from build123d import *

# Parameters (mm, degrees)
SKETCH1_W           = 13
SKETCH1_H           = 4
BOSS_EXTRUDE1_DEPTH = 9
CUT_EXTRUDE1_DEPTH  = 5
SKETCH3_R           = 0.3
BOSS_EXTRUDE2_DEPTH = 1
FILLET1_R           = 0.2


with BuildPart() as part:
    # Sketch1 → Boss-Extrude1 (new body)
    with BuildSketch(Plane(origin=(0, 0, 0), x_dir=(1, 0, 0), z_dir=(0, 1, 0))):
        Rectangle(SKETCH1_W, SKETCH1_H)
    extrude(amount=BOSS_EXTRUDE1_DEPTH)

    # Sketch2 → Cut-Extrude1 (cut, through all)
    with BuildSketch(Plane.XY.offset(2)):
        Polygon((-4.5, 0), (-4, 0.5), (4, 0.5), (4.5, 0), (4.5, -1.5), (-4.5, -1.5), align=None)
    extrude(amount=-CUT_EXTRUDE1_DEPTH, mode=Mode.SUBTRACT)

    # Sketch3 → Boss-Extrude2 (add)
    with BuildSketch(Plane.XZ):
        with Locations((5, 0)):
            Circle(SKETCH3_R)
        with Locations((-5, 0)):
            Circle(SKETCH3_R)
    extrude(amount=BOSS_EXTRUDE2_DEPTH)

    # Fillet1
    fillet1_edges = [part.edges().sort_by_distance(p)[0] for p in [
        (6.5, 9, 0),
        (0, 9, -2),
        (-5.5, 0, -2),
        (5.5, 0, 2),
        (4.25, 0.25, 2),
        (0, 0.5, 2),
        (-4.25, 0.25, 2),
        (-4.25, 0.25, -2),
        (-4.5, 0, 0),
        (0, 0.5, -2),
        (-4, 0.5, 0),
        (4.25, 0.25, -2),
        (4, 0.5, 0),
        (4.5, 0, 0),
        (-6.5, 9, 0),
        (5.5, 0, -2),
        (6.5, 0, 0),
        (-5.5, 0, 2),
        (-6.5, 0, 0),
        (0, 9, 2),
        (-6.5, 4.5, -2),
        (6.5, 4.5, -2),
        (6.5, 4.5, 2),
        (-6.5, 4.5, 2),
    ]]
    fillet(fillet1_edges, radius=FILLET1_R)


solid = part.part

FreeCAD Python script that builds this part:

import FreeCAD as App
import Part
import Sketcher
from FreeCAD import Vector
Q = App.Units.Quantity


def edges_at(feature, points):
    """Names of the edges that pass closest to the given points."""
    edges = feature.Shape.Edges
    near = lambda p: min(range(len(edges)), key=lambda i: edges[i].distToShape(Part.Vertex(*p))[0])
    return sorted({f"Edge{near(p) + 1}" for p in points})


def add_polygon(sketch, points):
    """Adds a closed chain of lines whose ends are joined by coincident constraints."""
    first, n = sketch.GeometryCount, len(points)
    for a, b in zip(points, points[1:] + points[:1]):
        sketch.addGeometry(Part.LineSegment(App.Vector(*a, 0), App.Vector(*b, 0)), False)
    for i in range(n):
        sketch.addConstraint(Sketcher.Constraint("Coincident", first + i, 2, first + (i + 1) % n, 1))

doc = App.newDocument("Part")
body = doc.addObject("PartDesign::Body", "Body")

# Sketch on XZ plane
sketch1 = doc.addObject("Sketcher::SketchObject", "Sketch")
body.addObject(sketch1)
sketch1.AttachmentSupport = (doc.XZ_Plane, [""])
sketch1.MapMode = "FlatFace"
add_polygon(sketch1, [(-6.5, -2), (-6.5, 2), (6.5, 2), (6.5, -2)])  # lines 0-3
sketch1.addConstraint(Sketcher.Constraint("Vertical", 0))
sketch1.addConstraint(Sketcher.Constraint("Horizontal", 1))
sketch1.addConstraint(Sketcher.Constraint("Vertical", 2))
sketch1.addConstraint(Sketcher.Constraint("Horizontal", 3))
sketch1.addConstraint(Sketcher.Constraint("Symmetric", 0, 2, 2, 2, -1, 1))
sketch1.addConstraint(Sketcher.Constraint("DistanceX", 1, 1, 1, 2, Q("13 mm")))
sketch1.addConstraint(Sketcher.Constraint("DistanceY", 0, 1, 0, 2, Q("4 mm")))
pad1 = doc.addObject("PartDesign::Pad", "Pad")
body.addObject(pad1)
pad1.Profile = sketch1
pad1.Length = 9
pad1.Reversed = True

# Sketch on XY plane
sketch2 = doc.addObject("Sketcher::SketchObject", "Sketch001")
body.addObject(sketch2)
sketch2.AttachmentSupport = (doc.XY_Plane, [""])
sketch2.MapMode = "FlatFace"
sketch2.AttachmentOffset = App.Placement(Vector(0, 0, 2), App.Rotation())
add_polygon(sketch2, [(-4, 0.5), (-4.5, 0), (-4.5, -1.5), (4.5, -1.5), (4.5, 0), (4, 0.5)])  # lines 0-5
sketch2.addConstraint(Sketcher.Constraint("Vertical", 1))
sketch2.addConstraint(Sketcher.Constraint("Horizontal", 2))
sketch2.addConstraint(Sketcher.Constraint("Vertical", 3))
sketch2.addConstraint(Sketcher.Constraint("Horizontal", 5))
sketch2.addConstraint(Sketcher.Constraint("Symmetric", 0, 2, 3, 2, -1, 1))
sketch2.addConstraint(Sketcher.Constraint("PointOnObject", 0, 2, -1))
sketch2.addConstraint(Sketcher.Constraint("Perpendicular", 0, 4))
sketch2.addConstraint(Sketcher.Constraint("Equal", 0, 4))
sketch2.addConstraint(Sketcher.Constraint("DistanceX", 2, 1, 2, 2, Q("9 mm")))
sketch2.addConstraint(Sketcher.Constraint("DistanceX", 5, 2, 5, 1, Q("8 mm")))
sketch2.addConstraint(Sketcher.Constraint("DistanceY", 1, 2, 1, 1, Q("1.5 mm")))
pocket1 = doc.addObject("PartDesign::Pocket", "Pocket")
body.addObject(pocket1)
pocket1.Profile = sketch2
pocket1.Type = "ThroughAll"

# Sketch on XZ plane
sketch3 = doc.addObject("Sketcher::SketchObject", "Sketch002")
body.addObject(sketch3)
sketch3.AttachmentSupport = (doc.XZ_Plane, [""])
sketch3.MapMode = "FlatFace"
sketch3.addGeometry(Part.Circle(Vector(5, 0, 0), Vector(0, 0, 1), 0.3), False)
sketch3.addGeometry(Part.Circle(Vector(-5, 0, 0), Vector(0, 0, 1), 0.3), False)
sketch3.addConstraint(Sketcher.Constraint("Equal", 0, 1))
sketch3.addConstraint(Sketcher.Constraint("Symmetric", 0, 3, 1, 3, -1, 1))
sketch3.addConstraint(Sketcher.Constraint("PointOnObject", 0, 3, -1))
sketch3.addConstraint(Sketcher.Constraint("Diameter", 0, Q("0.6 mm")))
sketch3.addConstraint(Sketcher.Constraint("DistanceX", -1, 1, 0, 3, Q("5 mm")))
pad2 = doc.addObject("PartDesign::Pad", "Pad001")
body.addObject(pad2)
pad2.Profile = sketch3
pad2.Length = 1
doc.recompute()

fillet = doc.addObject("PartDesign::Fillet", "Fillet")
body.addObject(fillet)
fillet.Base = (pad2, edges_at(pad2, [
    (6.5, 9, 0),
    (0, 9, -2),
    (-5.5, 0, -2),
    (5.5, 0, 2),
    (4.25, 0.25, 2),
    (0, 0.5, 2),
    (-4.25, 0.25, 2),
    (-4.25, 0.25, -2),
    (-4.5, 0, 0),
    (0, 0.5, -2),
    (-4, 0.5, 0),
    (4.25, 0.25, -2),
    (4, 0.5, 0),
    (4.5, 0, 0),
    (-6.5, 9, 0),
    (5.5, 0, -2),
    (6.5, 0, 0),
    (-5.5, 0, 2),
    (-6.5, 0, 0),
    (0, 9, 2),
    (-6.5, 4.5, -2),
    (6.5, 4.5, -2),
    (6.5, 4.5, 2),
    (-6.5, 4.5, 2),
]))
fillet.Radius = 0.2

doc.recompute()
